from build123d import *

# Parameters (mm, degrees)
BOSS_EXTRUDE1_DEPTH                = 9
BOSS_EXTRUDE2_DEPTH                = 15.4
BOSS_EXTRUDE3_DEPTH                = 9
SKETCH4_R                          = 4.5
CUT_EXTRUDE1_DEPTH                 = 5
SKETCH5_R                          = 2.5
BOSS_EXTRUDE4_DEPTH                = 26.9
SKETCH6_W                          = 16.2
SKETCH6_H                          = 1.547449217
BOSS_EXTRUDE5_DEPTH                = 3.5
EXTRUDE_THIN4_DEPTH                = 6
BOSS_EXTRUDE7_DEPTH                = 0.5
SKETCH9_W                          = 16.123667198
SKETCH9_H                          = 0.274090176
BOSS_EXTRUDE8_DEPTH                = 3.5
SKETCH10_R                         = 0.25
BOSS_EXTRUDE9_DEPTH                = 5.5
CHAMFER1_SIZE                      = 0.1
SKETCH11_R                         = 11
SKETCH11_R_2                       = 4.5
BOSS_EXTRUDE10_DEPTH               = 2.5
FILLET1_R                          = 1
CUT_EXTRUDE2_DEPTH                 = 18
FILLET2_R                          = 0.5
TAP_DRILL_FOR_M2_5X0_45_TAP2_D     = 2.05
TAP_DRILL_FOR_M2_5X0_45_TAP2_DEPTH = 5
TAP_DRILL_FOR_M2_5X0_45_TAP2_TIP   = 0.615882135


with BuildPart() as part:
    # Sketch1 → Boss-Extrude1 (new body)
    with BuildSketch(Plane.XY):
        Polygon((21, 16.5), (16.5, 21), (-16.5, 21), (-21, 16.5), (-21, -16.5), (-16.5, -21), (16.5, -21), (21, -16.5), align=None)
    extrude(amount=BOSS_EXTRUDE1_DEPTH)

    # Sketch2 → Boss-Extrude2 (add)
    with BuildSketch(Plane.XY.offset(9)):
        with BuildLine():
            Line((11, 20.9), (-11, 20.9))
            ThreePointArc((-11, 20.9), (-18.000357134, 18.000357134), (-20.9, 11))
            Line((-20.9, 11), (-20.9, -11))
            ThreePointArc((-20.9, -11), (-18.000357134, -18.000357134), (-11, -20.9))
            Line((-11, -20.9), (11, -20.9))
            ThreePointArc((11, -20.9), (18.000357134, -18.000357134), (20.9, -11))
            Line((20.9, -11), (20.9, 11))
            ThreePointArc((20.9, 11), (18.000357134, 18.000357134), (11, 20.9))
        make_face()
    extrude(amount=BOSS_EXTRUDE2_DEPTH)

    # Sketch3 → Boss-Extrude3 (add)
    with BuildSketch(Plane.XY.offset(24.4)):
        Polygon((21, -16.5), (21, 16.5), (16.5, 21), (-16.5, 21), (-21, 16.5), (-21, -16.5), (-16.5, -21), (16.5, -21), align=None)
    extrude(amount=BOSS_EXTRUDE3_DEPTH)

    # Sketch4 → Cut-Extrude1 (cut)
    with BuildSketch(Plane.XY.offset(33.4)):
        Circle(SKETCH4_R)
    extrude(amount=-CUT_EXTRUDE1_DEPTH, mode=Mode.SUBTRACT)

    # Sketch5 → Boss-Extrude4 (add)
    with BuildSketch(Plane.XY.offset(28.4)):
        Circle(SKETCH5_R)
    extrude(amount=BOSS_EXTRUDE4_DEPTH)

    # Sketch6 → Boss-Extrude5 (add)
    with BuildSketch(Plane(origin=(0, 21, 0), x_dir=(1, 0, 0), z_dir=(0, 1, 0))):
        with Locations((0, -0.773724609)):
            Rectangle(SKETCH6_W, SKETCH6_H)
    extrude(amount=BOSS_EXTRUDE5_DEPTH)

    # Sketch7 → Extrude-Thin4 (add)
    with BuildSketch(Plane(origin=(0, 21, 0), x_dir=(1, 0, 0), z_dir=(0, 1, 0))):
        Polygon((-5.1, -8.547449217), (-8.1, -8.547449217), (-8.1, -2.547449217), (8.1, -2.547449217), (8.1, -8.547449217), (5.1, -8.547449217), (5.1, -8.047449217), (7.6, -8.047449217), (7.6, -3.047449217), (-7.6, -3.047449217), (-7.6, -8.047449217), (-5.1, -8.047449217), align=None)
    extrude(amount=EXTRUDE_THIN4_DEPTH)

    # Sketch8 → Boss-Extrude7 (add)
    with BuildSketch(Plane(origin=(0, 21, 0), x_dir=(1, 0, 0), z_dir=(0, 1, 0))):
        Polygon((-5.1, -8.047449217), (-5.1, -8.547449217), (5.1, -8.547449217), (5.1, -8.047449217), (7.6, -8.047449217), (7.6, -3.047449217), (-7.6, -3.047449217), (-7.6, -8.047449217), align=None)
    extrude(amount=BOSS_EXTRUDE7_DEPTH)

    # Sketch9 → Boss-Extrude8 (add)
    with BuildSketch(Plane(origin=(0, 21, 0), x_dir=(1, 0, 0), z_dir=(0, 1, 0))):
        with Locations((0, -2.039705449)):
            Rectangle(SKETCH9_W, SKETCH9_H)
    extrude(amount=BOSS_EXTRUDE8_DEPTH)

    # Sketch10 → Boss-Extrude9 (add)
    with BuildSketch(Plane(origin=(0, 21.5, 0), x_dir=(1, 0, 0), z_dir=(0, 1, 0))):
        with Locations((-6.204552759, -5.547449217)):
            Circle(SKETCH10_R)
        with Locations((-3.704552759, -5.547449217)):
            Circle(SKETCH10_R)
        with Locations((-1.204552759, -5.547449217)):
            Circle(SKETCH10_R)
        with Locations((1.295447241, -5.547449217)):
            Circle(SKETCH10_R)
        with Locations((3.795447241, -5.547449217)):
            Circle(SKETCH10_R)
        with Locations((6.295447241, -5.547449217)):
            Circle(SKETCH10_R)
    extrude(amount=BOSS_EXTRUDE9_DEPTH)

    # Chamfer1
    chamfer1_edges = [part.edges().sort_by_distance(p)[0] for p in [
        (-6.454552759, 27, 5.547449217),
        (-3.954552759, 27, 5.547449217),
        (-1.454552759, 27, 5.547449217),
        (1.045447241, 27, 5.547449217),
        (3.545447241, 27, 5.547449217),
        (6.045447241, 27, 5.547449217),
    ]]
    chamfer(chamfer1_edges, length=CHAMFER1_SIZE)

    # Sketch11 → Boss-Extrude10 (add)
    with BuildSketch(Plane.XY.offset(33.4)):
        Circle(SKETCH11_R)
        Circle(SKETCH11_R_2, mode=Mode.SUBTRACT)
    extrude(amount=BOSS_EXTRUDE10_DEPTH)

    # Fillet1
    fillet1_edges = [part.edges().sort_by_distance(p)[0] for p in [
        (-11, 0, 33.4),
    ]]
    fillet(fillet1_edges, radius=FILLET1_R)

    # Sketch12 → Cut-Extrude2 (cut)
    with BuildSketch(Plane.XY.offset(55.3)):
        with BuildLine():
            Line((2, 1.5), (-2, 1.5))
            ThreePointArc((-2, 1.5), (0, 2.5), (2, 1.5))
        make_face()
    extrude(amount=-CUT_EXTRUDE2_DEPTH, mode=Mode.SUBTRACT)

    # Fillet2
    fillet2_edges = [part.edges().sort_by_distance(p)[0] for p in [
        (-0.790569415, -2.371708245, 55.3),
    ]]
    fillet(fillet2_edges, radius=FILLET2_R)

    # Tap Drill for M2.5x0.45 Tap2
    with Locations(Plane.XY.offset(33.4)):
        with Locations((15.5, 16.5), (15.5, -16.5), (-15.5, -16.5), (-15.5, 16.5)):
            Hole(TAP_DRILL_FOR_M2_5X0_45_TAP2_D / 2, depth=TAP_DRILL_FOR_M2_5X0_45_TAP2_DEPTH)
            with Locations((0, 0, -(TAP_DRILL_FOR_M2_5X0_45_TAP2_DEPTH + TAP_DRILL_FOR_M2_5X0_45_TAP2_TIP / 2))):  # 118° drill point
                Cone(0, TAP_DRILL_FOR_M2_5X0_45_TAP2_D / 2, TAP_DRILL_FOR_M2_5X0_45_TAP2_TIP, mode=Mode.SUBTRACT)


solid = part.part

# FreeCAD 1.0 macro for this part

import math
import FreeCAD as App
import Part
import Sketcher
from FreeCAD import Vector


def edges_at(feature, points):
    """Names of the edges that pass closest to the given points."""
    edges = feature.Shape.Edges
    near = lambda p: min(range(len(edges)), key=lambda i: edges[i].distToShape(Part.Vertex(*p))[0])
    return sorted({f"Edge{near(p) + 1}" for p in points})


def add_polygon(sketch, points):
    """Adds a closed chain of lines whose ends are joined by coincident constraints."""
    first, n = sketch.GeometryCount, len(points)
    for a, b in zip(points, points[1:] + points[:1]):
        sketch.addGeometry(Part.LineSegment(App.Vector(*a, 0), App.Vector(*b, 0)), False)
    for i in range(n):
        sketch.addConstraint(Sketcher.Constraint("Coincident", first + i, 2, first + (i + 1) % n, 1))

doc = App.newDocument("Part")
body = doc.addObject("PartDesign::Body", "Body")

# Sketch on XY plane
sketch1 = body.newObject("Sketcher::SketchObject", "Sketch")
sketch1.AttachmentSupport = (doc.getObject("XY_Plane"), [""])
sketch1.MapMode = "FlatFace"
add_polygon(sketch1, [(21, 16.5), (16.5, 21), (-16.5, 21), (-21, 16.5), (-21, -16.5), (-16.5, -21), (16.5, -21), (21, -16.5)])  # lines 0-7
sketch1.addConstraint([
    Sketcher.Constraint("Horizontal", 1),
    Sketcher.Constraint("Vertical", 3),
    Sketcher.Constraint("Horizontal", 5),
    Sketcher.Constraint("Vertical", 7),
    Sketcher.Constraint("Symmetric", 0, 2, 4, 2, -1, 1),
    Sketcher.Constraint("Symmetric", 2, 2, 6, 2, -1, 1),
    Sketcher.Constraint("Perpendicular", 0, 2),
    Sketcher.Constraint("Perpendicular", 2, 4),
    Sketcher.Constraint("Perpendicular", 4, 6),
    Sketcher.Constraint("Horizontal", 3, 2, 6, 2),
    Sketcher.Constraint("Vertical", 1, 2, 4, 2),
    Sketcher.Constraint("Equal", 5, 3),
    Sketcher.Constraint("DistanceX", 1, 2, 1, 1, 33.0),
    Sketcher.Constraint("DistanceY", -1, 1, 0, 2, 21.0),
])
pad1 = body.newObject("PartDesign::Pad", "Pad")
pad1.Profile = sketch1
pad1.Length = 9

# Sketch on XY plane
sketch2 = body.newObject("Sketcher::SketchObject", "Sketch001")
sketch2.AttachmentSupport = (doc.getObject("XY_Plane"), [""])
sketch2.MapMode = "FlatFace"
sketch2.AttachmentOffset = App.Placement(Vector(0, 0, 9), App.Rotation())
sketch2.addGeometry([
    Part.LineSegment(Vector(11, 20.9, 0), Vector(-11, 20.9, 0)),  # 0
    Part.ArcOfCircle(Part.Circle(Vector(-11, 11, 0), Vector(0, 0, 1), 9.9), math.radians(90), math.radians(180)),  # 1
    Part.LineSegment(Vector(-20.9, 11, 0), Vector(-20.9, -11, 0)),  # 2
    Part.ArcOfCircle(Part.Circle(Vector(-11, -11, 0), Vector(0, 0, 1), 9.9), math.radians(180), math.radians(270)),  # 3
    Part.LineSegment(Vector(-11, -20.9, 0), Vector(11, -20.9, 0)),  # 4
    Part.ArcOfCircle(Part.Circle(Vector(11, -11, 0), Vector(0, 0, 1), 9.9), math.radians(-90), math.radians(0)),  # 5
    Part.LineSegment(Vector(20.9, -11, 0), Vector(20.9, 11, 0)),  # 6
    Part.ArcOfCircle(Part.Circle(Vector(11, 11, 0), Vector(0, 0, 1), 9.9), math.radians(0), math.radians(90)),  # 7
], False)
sketch2.addConstraint([
    Sketcher.Constraint("Tangent", 0, 2, 1, 1),
    Sketcher.Constraint("Tangent", 1, 2, 2, 1),
    Sketcher.Constraint("Tangent", 2, 2, 3, 1),
    Sketcher.Constraint("Tangent", 3, 2, 4, 1),
    Sketcher.Constraint("Tangent", 4, 2, 5, 1),
    Sketcher.Constraint("Tangent", 5, 2, 6, 1),
    Sketcher.Constraint("Tangent", 6, 2, 7, 1),
    Sketcher.Constraint("Tangent", 7, 2, 0, 1),
    Sketcher.Constraint("Horizontal", 0),
    Sketcher.Constraint("Vertical", 2),
    Sketcher.Constraint("Horizontal", 4),
    Sketcher.Constraint("Vertical", 6),
    Sketcher.Constraint("Equal", 1, 3),
    Sketcher.Constraint("Equal", 3, 5),
    Sketcher.Constraint("Equal", 5, 7),
    Sketcher.Constraint("Symmetric", 1, 3, 5, 3, -1, 1),
    Sketcher.Constraint("Equal", 4, 2),
    Sketcher.Constraint("Radius", 1, 9.9),
    Sketcher.Constraint("DistanceX", 0, 2, 0, 1, 22.0),
])
pad2 = body.newObject("PartDesign::Pad", "Pad001")
pad2.Profile = sketch2
pad2.Length = 15.4

# Sketch on XY plane
sketch3 = body.newObject("Sketcher::SketchObject", "Sketch002")
sketch3.AttachmentSupport = (doc.getObject("XY_Plane"), [""])
sketch3.MapMode = "FlatFace"
sketch3.AttachmentOffset = App.Placement(Vector(0, 0, 24.4), App.Rotation())
add_polygon(sketch3, [(21, -16.5), (21, 16.5), (16.5, 21), (-16.5, 21), (-21, 16.5), (-21, -16.5), (-16.5, -21), (16.5, -21)])  # lines 0-7
sketch3.addConstraint([
    Sketcher.Constraint("Vertical", 0),
    Sketcher.Constraint("Horizontal", 2),
    Sketcher.Constraint("Vertical", 4),
    Sketcher.Constraint("Horizontal", 6),
    Sketcher.Constraint("Symmetric", 0, 2, 4, 2, -1, 1),
    Sketcher.Constraint("Symmetric", 1, 2, 5, 2, -1, 1),
    Sketcher.Constraint("Perpendicular", 1, 3),
    Sketcher.Constraint("Perpendicular", 5, 7),
    Sketcher.Constraint("Horizontal", 0, 2, 3, 2),
    Sketcher.Constraint("Horizontal", 4, 2, 7, 2),
    Sketcher.Constraint("Vertical", 2, 2, 5, 2),
    Sketcher.Constraint("Equal", 6, 0),
    Sketcher.Constraint("DistanceX", 2, 2, 2, 1, 33.0),
    Sketcher.Constraint("DistanceX", -1, 1, 0, 2, 21.0),
])
pad3 = body.newObject("PartDesign::Pad", "Pad002")
pad3.Profile = sketch3
pad3.Length = 9

# Sketch on XY plane
sketch4 = body.newObject("Sketcher::SketchObject", "Sketch003")
sketch4.AttachmentSupport = (doc.getObject("XY_Plane"), [""])
sketch4.MapMode = "FlatFace"
sketch4.AttachmentOffset = App.Placement(Vector(0, 0, 33.4), App.Rotation())
sketch4.addGeometry(Part.Circle(Vector(0, 0, 0), Vector(0, 0, 1), 4.5), False)
sketch4.addConstraint([
    Sketcher.Constraint("Coincident", 0, 3, -1, 1),
    Sketcher.Constraint("Diameter", 0, 9.0),
])
pocket1 = body.newObject("PartDesign::Pocket", "Pocket")
pocket1.Profile = sketch4
pocket1.Length = 5

# Sketch on XY plane
sketch5 = body.newObject("Sketcher::SketchObject", "Sketch004")
sketch5.AttachmentSupport = (doc.getObject("XY_Plane"), [""])
sketch5.MapMode = "FlatFace"
sketch5.AttachmentOffset = App.Placement(Vector(0, 0, 28.4), App.Rotation())
sketch5.addGeometry(Part.Circle(Vector(0, 0, 0), Vector(0, 0, 1), 2.5), False)
sketch5.addConstraint([
    Sketcher.Constraint("Coincident", 0, 3, -1, 1),
    Sketcher.Constraint("Diameter", 0, 5.0),
])
pad4 = body.newObject("PartDesign::Pad", "Pad003")
pad4.Profile = sketch5
pad4.Length = 26.9

# Sketch on XZ plane
sketch6 = body.newObject("Sketcher::SketchObject", "Sketch005")
sketch6.AttachmentSupport = (doc.getObject("XZ_Plane"), [""])
sketch6.MapMode = "FlatFace"
sketch6.AttachmentOffset = App.Placement(Vector(0, 0, -21), App.Rotation())
add_polygon(sketch6, [(-8.1, 0), (-8.1, 1.547449), (8.1, 1.547449), (8.1, 0)])  # lines 0-3
sketch6.addConstraint([
    Sketcher.Constraint("Vertical", 0),
    Sketcher.Constraint("Horizontal", 1),
    Sketcher.Constraint("Vertical", 2),
    Sketcher.Constraint("Horizontal", 3),
    Sketcher.Constraint("Symmetric", 2, 2, 3, 2, -1, 1),
    Sketcher.Constraint("DistanceX", 1, 1, 1, 2, 16.2),
    Sketcher.Constraint("DistanceY", 0, 1, 0, 2, 1.547449),
])
pad5 = body.newObject("PartDesign::Pad", "Pad004")
pad5.Profile = sketch6
pad5.Length = 3.5
pad5.Reversed = True

# Sketch on XZ plane
sketch7 = body.newObject("Sketcher::SketchObject", "Sketch006")
sketch7.AttachmentSupport = (doc.getObject("XZ_Plane"), [""])
sketch7.MapMode = "FlatFace"
sketch7.AttachmentOffset = App.Placement(Vector(0, 0, -21), App.Rotation())
add_polygon(sketch7, [(-8.1, 8.547449), (-5.1, 8.547449), (-5.1, 8.047449), (-7.6, 8.047449), (-7.6, 3.047449), (7.6, 3.047449), (7.6, 8.047449), (5.1, 8.047449), (5.1, 8.547449), (8.1, 8.547449), (8.1, 2.547449), (-8.1, 2.547449)])  # lines 0-11
sketch7.addConstraint([
    Sketcher.Constraint("Horizontal", 0),
    Sketcher.Constraint("Vertical", 1),
    Sketcher.Constraint("Horizontal", 2),
    Sketcher.Constraint("Vertical", 3),
    Sketcher.Constraint("Horizontal", 4),
    Sketcher.Constraint("Vertical", 5),
    Sketcher.Constraint("Horizontal", 6),
    Sketcher.Constraint("Vertical", 7),
    Sketcher.Constraint("Horizontal", 8),
    Sketcher.Constraint("Vertical", 9),
    Sketcher.Constraint("Horizontal", 10),
    Sketcher.Constraint("Vertical", 11),
    Sketcher.Constraint("Symmetric", 2, 2, 5, 2, -2),
    Sketcher.Constraint("Symmetric", 0, 2, 7, 2, -2),
    Sketcher.Constraint("Equal", 0, 8),
    Sketcher.Constraint("DistanceX", 0, 1, 0, 2, 3.0),
    Sketcher.Constraint("DistanceY", 3, 2, 3, 1, 5.0),
    Sketcher.Constraint("DistanceY", 9, 2, 9, 1, 6.0),
    Sketcher.Constraint("DistanceX", 2, 2, 2, 1, 2.5),
    Sketcher.Constraint("DistanceX", 4, 1, 4, 2, 15.2),
    Sketcher.Constraint("DistanceY", 1, 2, 1, 1, 0.5),
    Sketcher.Constraint("DistanceY", -1, 1, 0, 2, 8.547449),
])
pad6 = body.newObject("PartDesign::Pad", "Pad005")
pad6.Profile = sketch7
pad6.Length = 6
pad6.Reversed = True

# Sketch on XZ plane
sketch8 = body.newObject("Sketcher::SketchObject", "Sketch007")
sketch8.AttachmentSupport = (doc.getObject("XZ_Plane"), [""])
sketch8.MapMode = "FlatFace"
sketch8.AttachmentOffset = App.Placement(Vector(0, 0, -21), App.Rotation())
add_polygon(sketch8, [(-5.1, 8.047449), (-5.1, 8.547449), (5.1, 8.547449), (5.1, 8.047449), (7.6, 8.047449), (7.6, 3.047449), (-7.6, 3.047449), (-7.6, 8.047449)])  # lines 0-7
sketch8.addConstraint([
    Sketcher.Constraint("Vertical", 0),
    Sketcher.Constraint("Horizontal", 1),
    Sketcher.Constraint("Vertical", 2),
    Sketcher.Constraint("Horizontal", 3),
    Sketcher.Constraint("Vertical", 4),
    Sketcher.Constraint("Horizontal", 5),
    Sketcher.Constraint("Vertical", 6),
    Sketcher.Constraint("Horizontal", 7),
    Sketcher.Constraint("Symmetric", 3, 2, 6, 2, -2),
    Sketcher.Constraint("Equal", 3, 7),
    Sketcher.Constraint("DistanceY", 4, 2, 4, 1, 5.0),
    Sketcher.Constraint("DistanceX", 1, 1, 1, 2, 10.2),
    Sketcher.Constraint("DistanceX", 3, 1, 3, 2, 2.5),
    Sketcher.Constraint("DistanceY", 0, 1, 0, 2, 0.5),
    Sketcher.Constraint("DistanceY", -1, 1, 0, 2, 8.547449),
])
pad7 = body.newObject("PartDesign::Pad", "Pad006")
pad7.Profile = sketch8
pad7.Length = 0.5
pad7.Reversed = True

# Sketch on XZ plane
sketch9 = body.newObject("Sketcher::SketchObject", "Sketch008")
sketch9.AttachmentSupport = (doc.getObject("XZ_Plane"), [""])
sketch9.MapMode = "FlatFace"
sketch9.AttachmentOffset = App.Placement(Vector(0, 0, -21), App.Rotation())
add_polygon(sketch9, [(-8.061834, 1.90266), (-8.061834, 2.176751), (8.061834, 2.176751), (8.061834, 1.90266)])  # lines 0-3
sketch9.addConstraint([
    Sketcher.Constraint("Vertical", 0),
    Sketcher.Constraint("Horizontal", 1),
    Sketcher.Constraint("Vertical", 2),
    Sketcher.Constraint("Horizontal", 3),
    Sketcher.Constraint("DistanceY", 0, 1, 0, 2, 0.27409),
    Sketcher.Constraint("DistanceX", 1, 1, 1, 2, 16.123667),
    Sketcher.Constraint("DistanceY", -1, 1, 0, 2, 2.176751),
    Sketcher.Constraint("DistanceX", 0, 2, -1, 1, 8.061834),
])
pad8 = body.newObject("PartDesign::Pad", "Pad007")
pad8.Profile = sketch9
pad8.Length = 3.5
pad8.Reversed = True

# Sketch on XZ plane
sketch10 = body.newObject("Sketcher::SketchObject", "Sketch009")
sketch10.AttachmentSupport = (doc.getObject("XZ_Plane"), [""])
sketch10.MapMode = "FlatFace"
sketch10.AttachmentOffset = App.Placement(Vector(0, 0, -21.5), App.Rotation())
sketch10.addGeometry([
    Part.Circle(Vector(-6.204553, 5.547449, 0), Vector(0, 0, 1), 0.25),  # 0
    Part.Circle(Vector(-3.704553, 5.547449, 0), Vector(0, 0, 1), 0.25),  # 1
    Part.Circle(Vector(-1.204553, 5.547449, 0), Vector(0, 0, 1), 0.25),  # 2
    Part.Circle(Vector(1.295447, 5.547449, 0), Vector(0, 0, 1), 0.25),  # 3
    Part.Circle(Vector(3.795447, 5.547449, 0), Vector(0, 0, 1), 0.25),  # 4
    Part.Circle(Vector(6.295447, 5.547449, 0), Vector(0, 0, 1), 0.25),  # 5
], False)
sketch10.addConstraint([
    Sketcher.Constraint("Equal", 0, 1),
    Sketcher.Constraint("Equal", 1, 2),
    Sketcher.Constraint("Equal", 2, 3),
    Sketcher.Constraint("Equal", 3, 4),
    Sketcher.Constraint("Equal", 4, 5),
    Sketcher.Constraint("Horizontal", 0, 3, 1, 3),
    Sketcher.Constraint("Horizontal", 1, 3, 2, 3),
    Sketcher.Constraint("Horizontal", 2, 3, 3, 3),
    Sketcher.Constraint("Horizontal", 3, 3, 4, 3),
    Sketcher.Constraint("Horizontal", 4, 3, 5, 3),
    Sketcher.Constraint("Diameter", 0, 0.5),
    Sketcher.Constraint("DistanceX", 0, 3, 2, 3, 5.0),
    Sketcher.Constraint("DistanceX", 1, 3, 3, 3, 5.0),
    Sketcher.Constraint("DistanceX", 2, 3, 4, 3, 5.0),
    Sketcher.Constraint("DistanceX", 3, 3, 5, 3, 5.0),
    Sketcher.Constraint("DistanceX", 0, 3, 1, 3, 2.5),
    Sketcher.Constraint("DistanceY", -1, 1, 0, 3, 5.547449),
    Sketcher.Constraint("DistanceX", 0, 3, -1, 1, 6.204553),
])
pad9 = body.newObject("PartDesign::Pad", "Pad008")
pad9.Profile = sketch10
pad9.Length = 5.5
pad9.Reversed = True
doc.recompute()

chamfer = body.newObject("PartDesign::Chamfer", "Chamfer")
chamfer.Base = (pad9, edges_at(pad9, [
    (-6.455, 27, 5.547),
    (-3.955, 27, 5.547),
    (-1.455, 27, 5.547),
    (1.045, 27, 5.547),
    (3.545, 27, 5.547),
    (6.045, 27, 5.547),
]))
chamfer.Size = 0.1

# Sketch on XY plane
sketch11 = body.newObject("Sketcher::SketchObject", "Sketch010")
sketch11.AttachmentSupport = (doc.getObject("XY_Plane"), [""])
sketch11.MapMode = "FlatFace"
sketch11.AttachmentOffset = App.Placement(Vector(0, 0, 33.4), App.Rotation())
sketch11.addGeometry([
    Part.Circle(Vector(0, 0, 0), Vector(0, 0, 1), 11),
    Part.Circle(Vector(0, 0, 0), Vector(0, 0, 1), 4.5),
], False)
sketch11.addConstraint([
    Sketcher.Constraint("Coincident", 0, 3, -1, 1),
    Sketcher.Constraint("Coincident", 1, 3, -1, 1),
    Sketcher.Constraint("Diameter", 0, 22.0),
    Sketcher.Constraint("Diameter", 1, 9.0),
])
pad10 = body.newObject("PartDesign::Pad", "Pad009")
pad10.Profile = sketch11
pad10.Length = 2.5
doc.recompute()

fillet = body.newObject("PartDesign::Fillet", "Fillet")
fillet.Base = (pad10, edges_at(pad10, [(-11, 0, 33.4)]))
fillet.Radius = 1

# Sketch on XY plane
sketch12 = body.newObject("Sketcher::SketchObject", "Sketch011")
sketch12.AttachmentSupport = (doc.getObject("XY_Plane"), [""])
sketch12.MapMode = "FlatFace"
sketch12.AttachmentOffset = App.Placement(Vector(0, 0, 55.3), App.Rotation())
sketch12.addGeometry([
    Part.LineSegment(Vector(-2, 1.5, 0), Vector(2, 1.5, 0)),
    Part.ArcOfCircle(Part.Circle(Vector(0, 0, 0), Vector(0, 0, 1), 2.5), math.radians(36.869898), math.radians(143.130102)),
], False)
sketch12.addConstraint([
    Sketcher.Constraint("Coincident", 0, 1, 1, 2),
    Sketcher.Constraint("Coincident", 1, 1, 0, 2),
    Sketcher.Constraint("Horizontal", 0),
    Sketcher.Constraint("Coincident", 1, 3, -1, 1),
    Sketcher.Constraint("Radius", 1, 2.5),
    Sketcher.Constraint("DistanceX", 0, 1, 0, 2, 4.0),
])
pocket2 = body.newObject("PartDesign::Pocket", "Pocket001")
pocket2.Profile = sketch12
pocket2.Length = 18
doc.recompute()

fillet2 = body.newObject("PartDesign::Fillet", "Fillet001")
fillet2.Base = (pocket2, edges_at(pocket2, [(-0.791, -2.372, 55.3)]))
fillet2.Radius = 0.5

# Sketch on XY plane
sketch13 = body.newObject("Sketcher::SketchObject", "Sketch012")
sketch13.AttachmentSupport = (doc.getObject("XY_Plane"), [""])
sketch13.MapMode = "FlatFace"
sketch13.AttachmentOffset = App.Placement(Vector(0, 0, 33.4), App.Rotation())
sketch13.addGeometry([
    Part.Circle(Vector(15.5, 16.5, 0), Vector(0, 0, 1), 1.025),
    Part.Circle(Vector(15.5, -16.5, 0), Vector(0, 0, 1), 1.025),
    Part.Circle(Vector(-15.5, -16.5, 0), Vector(0, 0, 1), 1.025),
    Part.Circle(Vector(-15.5, 16.5, 0), Vector(0, 0, 1), 1.025),
], False)
sketch13.addConstraint([
    Sketcher.Constraint("Equal", 0, 1),
    Sketcher.Constraint("Equal", 1, 2),
    Sketcher.Constraint("Equal", 2, 3),
    Sketcher.Constraint("Symmetric", 0, 3, 2, 3, -1, 1),
    Sketcher.Constraint("Symmetric", 1, 3, 3, 3, -1, 1),
    Sketcher.Constraint("Symmetric", 1, 3, 2, 3, -2),
    Sketcher.Constraint("Diameter", 0, 2.05),
    Sketcher.Constraint("DistanceY", 1, 3, 0, 3, 33.0),
    Sketcher.Constraint("DistanceX", 2, 3, 1, 3, 31.0),
])
doc.recompute()
hole = body.newObject("PartDesign::Hole", "Hole")
hole.Profile = sketch13
hole.ThreadType = "None"
hole.Diameter = 2.05
hole.DepthType = "Dimension"
hole.Depth = 5
hole.DrillPoint = "Angled"
hole.DrillPointAngle = 118

doc.recompute()
